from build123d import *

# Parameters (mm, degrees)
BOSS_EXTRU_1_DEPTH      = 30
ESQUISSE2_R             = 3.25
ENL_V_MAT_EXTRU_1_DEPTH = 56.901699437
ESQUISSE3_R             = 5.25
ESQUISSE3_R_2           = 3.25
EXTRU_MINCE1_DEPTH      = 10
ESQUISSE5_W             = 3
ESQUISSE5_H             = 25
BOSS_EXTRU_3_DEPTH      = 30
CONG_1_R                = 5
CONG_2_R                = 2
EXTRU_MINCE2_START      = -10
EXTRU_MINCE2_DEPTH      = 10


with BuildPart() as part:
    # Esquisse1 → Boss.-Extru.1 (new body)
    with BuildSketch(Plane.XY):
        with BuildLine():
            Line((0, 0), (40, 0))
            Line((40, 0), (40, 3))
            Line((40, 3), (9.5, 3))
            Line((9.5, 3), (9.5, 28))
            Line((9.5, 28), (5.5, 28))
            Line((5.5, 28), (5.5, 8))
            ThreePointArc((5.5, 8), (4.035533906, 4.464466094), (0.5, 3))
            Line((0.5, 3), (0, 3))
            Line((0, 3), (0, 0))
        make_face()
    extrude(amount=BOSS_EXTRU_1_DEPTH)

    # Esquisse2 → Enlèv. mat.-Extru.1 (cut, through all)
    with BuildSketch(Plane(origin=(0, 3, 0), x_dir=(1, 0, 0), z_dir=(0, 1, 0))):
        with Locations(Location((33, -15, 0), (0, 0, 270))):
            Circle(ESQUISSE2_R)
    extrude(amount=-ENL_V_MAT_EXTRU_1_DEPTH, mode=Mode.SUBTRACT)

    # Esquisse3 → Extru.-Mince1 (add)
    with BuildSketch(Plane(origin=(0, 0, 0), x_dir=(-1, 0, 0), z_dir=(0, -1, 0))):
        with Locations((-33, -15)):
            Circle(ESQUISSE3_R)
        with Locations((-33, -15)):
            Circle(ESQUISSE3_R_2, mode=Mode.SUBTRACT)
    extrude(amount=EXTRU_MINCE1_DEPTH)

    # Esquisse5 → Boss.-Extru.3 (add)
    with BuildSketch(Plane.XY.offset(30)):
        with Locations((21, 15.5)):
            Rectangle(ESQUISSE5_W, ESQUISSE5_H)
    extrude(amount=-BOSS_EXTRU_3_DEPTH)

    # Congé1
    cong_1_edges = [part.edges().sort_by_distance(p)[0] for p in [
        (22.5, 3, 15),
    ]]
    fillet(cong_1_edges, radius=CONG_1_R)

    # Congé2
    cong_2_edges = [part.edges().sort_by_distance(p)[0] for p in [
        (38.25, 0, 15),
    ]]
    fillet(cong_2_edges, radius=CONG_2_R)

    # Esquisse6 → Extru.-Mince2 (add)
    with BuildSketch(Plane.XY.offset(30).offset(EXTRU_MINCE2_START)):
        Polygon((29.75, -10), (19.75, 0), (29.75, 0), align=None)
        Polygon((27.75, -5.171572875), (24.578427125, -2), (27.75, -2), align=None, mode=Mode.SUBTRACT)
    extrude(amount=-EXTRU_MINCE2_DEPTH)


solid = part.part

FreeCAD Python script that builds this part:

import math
import FreeCAD as App
import Part
import Sketcher
from FreeCAD import Vector


def edges_at(feature, points):
    """Names of the edges that pass closest to the given points."""
    edges = feature.Shape.Edges
    near = lambda p: min(range(len(edges)), key=lambda i: edges[i].distToShape(Part.Vertex(*p))[0])
    return sorted({f"Edge{near(p) + 1}" for p in points})

doc = App.newDocument("Part")
body = doc.addObject("PartDesign::Body", "Body")

# Sketch on XY plane
sketch1 = body.newObject("Sketcher::SketchObject", "Sketch")
sketch1.AttachmentSupport = (doc.getObject("XY_Plane"), [""])
sketch1.MapMode = "FlatFace"
sketch1.addGeometry([
    Part.LineSegment(Vector(0, 0, 0), Vector(40, 0, 0)),  # 0
    Part.LineSegment(Vector(40, 0, 0), Vector(40, 3, 0)),  # 1
    Part.LineSegment(Vector(40, 3, 0), Vector(9.5, 3, 0)),  # 2
    Part.LineSegment(Vector(9.5, 3, 0), Vector(9.5, 28, 0)),  # 3
    Part.LineSegment(Vector(9.5, 28, 0), Vector(5.5, 28, 0)),  # 4
    Part.LineSegment(Vector(5.5, 28, 0), Vector(5.5, 8, 0)),  # 5
    Part.ArcOfCircle(Part.Circle(Vector(0.5, 8, 0), Vector(0, 0, 1), 5), math.radians(-90), math.radians(0)),  # 6
    Part.LineSegment(Vector(0.5, 3, 0), Vector(0, 3, 0)),  # 7
    Part.LineSegment(Vector(0, 3, 0), Vector(0, 0, 0)),  # 8
], False)
sketch1.addConstraint([
    Sketcher.Constraint("Coincident", 0, 2, 1, 1),
    Sketcher.Constraint("Coincident", 1, 2, 2, 1),
    Sketcher.Constraint("Coincident", 2, 2, 3, 1),
    Sketcher.Constraint("Coincident", 3, 2, 4, 1),
    Sketcher.Constraint("Coincident", 4, 2, 5, 1),
    Sketcher.Constraint("Tangent", 5, 2, 6, 2),
    Sketcher.Constraint("Tangent", 6, 1, 7, 1),
    Sketcher.Constraint("Coincident", 7, 2, 8, 1),
    Sketcher.Constraint("Coincident", 8, 2, 0, 1),
    Sketcher.Constraint("Horizontal", 0),
    Sketcher.Constraint("Vertical", 1),
    Sketcher.Constraint("Horizontal", 2),
    Sketcher.Constraint("Vertical", 3),
    Sketcher.Constraint("Horizontal", 4),
    Sketcher.Constraint("Vertical", 5),
    Sketcher.Constraint("Horizontal", 7),
    Sketcher.Constraint("Vertical", 8),
    Sketcher.Constraint("Coincident", 8, 2, -1, 1),
    Sketcher.Constraint("Horizontal", 2, 2, 6, 1),
    Sketcher.Constraint("Radius", 6, 5.0),
    Sketcher.Constraint("DistanceX", 0, 1, 0, 2, 40.0),
    Sketcher.Constraint("DistanceX", 4, 2, 4, 1, 4.0),
    Sketcher.Constraint("DistanceY", 1, 1, 1, 2, 3.0),
    Sketcher.Constraint("DistanceY", 3, 1, 3, 2, 25.0),
    Sketcher.Constraint("DistanceX", 2, 2, 2, 1, 30.5),
])
pad1 = body.newObject("PartDesign::Pad", "Pad")
pad1.Profile = sketch1
pad1.Length = 30

# Sketch on XZ plane
sketch2 = body.newObject("Sketcher::SketchObject", "Sketch001")
sketch2.AttachmentSupport = (doc.getObject("XZ_Plane"), [""])
sketch2.MapMode = "FlatFace"
sketch2.AttachmentOffset = App.Placement(Vector(0, 0, -3), App.Rotation())
sketch2.addGeometry(Part.Circle(Vector(33, 15, 0), Vector(0, 0, 1), 3.2), False)
sketch2.addConstraint([
    Sketcher.Constraint("Diameter", 0, 6.5),
    Sketcher.Constraint("DistanceX", -1, 1, 0, 3, 33.0),
    Sketcher.Constraint("DistanceY", -1, 1, 0, 3, 15.0),
])
pocket1 = body.newObject("PartDesign::Pocket", "Pocket")
pocket1.Profile = sketch2
pocket1.Type = "ThroughAll"
pocket1.Reversed = True

# Sketch on XZ plane
sketch3 = body.newObject("Sketcher::SketchObject", "Sketch002")
sketch3.AttachmentSupport = (doc.getObject("XZ_Plane"), [""])
sketch3.MapMode = "FlatFace"
sketch3.addGeometry([
    Part.Circle(Vector(33, 15, 0), Vector(0, 0, 1), 5.2),
    Part.Circle(Vector(33, 15, 0), Vector(0, 0, 1), 3.2),
], False)
sketch3.addConstraint([
    Sketcher.Constraint("Coincident", 1, 3, 0, 3),
    Sketcher.Constraint("Diameter", 0, 10.5),
    Sketcher.Constraint("Diameter", 1, 6.5),
    Sketcher.Constraint("DistanceX", -1, 1, 0, 3, 33.0),
    Sketcher.Constraint("DistanceY", -1, 1, 0, 3, 15.0),
])
pad2 = body.newObject("PartDesign::Pad", "Pad001")
pad2.Profile = sketch3
pad2.Length = 10

# Sketch on XY plane
sketch4 = body.newObject("Sketcher::SketchObject", "Sketch003")
sketch4.AttachmentSupport = (doc.getObject("XY_Plane"), [""])
sketch4.MapMode = "FlatFace"
sketch4.AttachmentOffset = App.Placement(Vector(0, 0, 30), App.Rotation())
sketch4.addGeometry([
    Part.LineSegment(Vector(19.5, 28, 0), Vector(19.5, 3, 0)),
    Part.LineSegment(Vector(19.5, 3, 0), Vector(22.5, 3, 0)),
    Part.LineSegment(Vector(22.5, 3, 0), Vector(22.5, 28, 0)),
    Part.LineSegment(Vector(22.5, 28, 0), Vector(19.5, 28, 0)),
], False)
sketch4.addConstraint([
    Sketcher.Constraint("Coincident", 0, 2, 1, 1),
    Sketcher.Constraint("Coincident", 1, 2, 2, 1),
    Sketcher.Constraint("Coincident", 2, 2, 3, 1),
    Sketcher.Constraint("Coincident", 3, 2, 0, 1),
    Sketcher.Constraint("Vertical", 0),
    Sketcher.Constraint("Horizontal", 1),
    Sketcher.Constraint("Vertical", 2),
    Sketcher.Constraint("Horizontal", 3),
    Sketcher.Constraint("DistanceX", 1, 1, 1, 2, 3.0),
    Sketcher.Constraint("DistanceY", 0, 2, 0, 1, 25.0),
    Sketcher.Constraint("DistanceY", -1, 1, 0, 2, 3.0),
    Sketcher.Constraint("DistanceX", -1, 1, 0, 2, 19.5),
])
pad3 = body.newObject("PartDesign::Pad", "Pad002")
pad3.Profile = sketch4
pad3.Length = 30
pad3.Reversed = True
doc.recompute()

fillet = body.newObject("PartDesign::Fillet", "Fillet")
fillet.Base = (pad3, edges_at(pad3, [(22.5, 3, 15)]))
fillet.Radius = 5
doc.recompute()

fillet2 = body.newObject("PartDesign::Fillet", "Fillet001")
fillet2.Base = (fillet, edges_at(fillet, [(38.25, 0, 15)]))
fillet2.Radius = 2

# Sketch on XY plane
sketch5 = body.newObject("Sketcher::SketchObject", "Sketch004")
sketch5.AttachmentSupport = (doc.getObject("XY_Plane"), [""])
sketch5.MapMode = "FlatFace"
sketch5.AttachmentOffset = App.Placement(Vector(0, 0, 20), App.Rotation())
sketch5.addGeometry([
    Part.LineSegment(Vector(19.8, 0, 0), Vector(29.8, -10, 0)),  # 0
    Part.LineSegment(Vector(29.8, -10, 0), Vector(29.8, 0, 0)),  # 1
    Part.LineSegment(Vector(29.8, 0, 0), Vector(19.8, 0, 0)),  # 2
    Part.LineSegment(Vector(27.8, -5.2, 0), Vector(24.6, -2, 0)),  # 3
    Part.LineSegment(Vector(24.6, -2, 0), Vector(27.8, -2, 0)),  # 4
    Part.LineSegment(Vector(27.8, -2, 0), Vector(27.8, -5.2, 0)),  # 5
], False)
sketch5.addConstraint([
    Sketcher.Constraint("Coincident", 0, 2, 1, 1),
    Sketcher.Constraint("Coincident", 1, 2, 2, 1),
    Sketcher.Constraint("Coincident", 2, 2, 0, 1),
    Sketcher.Constraint("Coincident", 3, 2, 4, 1),
    Sketcher.Constraint("Coincident", 4, 2, 5, 1),
    Sketcher.Constraint("Coincident", 5, 2, 3, 1),
    Sketcher.Constraint("Vertical", 1),
    Sketcher.Constraint("Horizontal", 2),
    Sketcher.Constraint("Horizontal", 4),
    Sketcher.Constraint("Vertical", 5),
    Sketcher.Constraint("PointOnObject", 1, 2, -1),
    Sketcher.Constraint("Parallel", 0, 3),
    Sketcher.Constraint("Equal", 2, 1),
    Sketcher.Constraint("DistanceX", 2, 2, 2, 1, 10.0),
    Sketcher.Constraint("DistanceY", 3, 2, -1, 1, 2.0),
    Sketcher.Constraint("DistanceX", 4, 2, 1, 2, 2.0),
    Sketcher.Constraint("DistanceX", -1, 1, 0, 2, 29.75),
    Sketcher.Constraint("Distance", 3, 4.485281),
])
pad4 = body.newObject("PartDesign::Pad", "Pad003")
pad4.Profile = sketch5
pad4.Length = 10
pad4.Reversed = True

doc.recompute()
